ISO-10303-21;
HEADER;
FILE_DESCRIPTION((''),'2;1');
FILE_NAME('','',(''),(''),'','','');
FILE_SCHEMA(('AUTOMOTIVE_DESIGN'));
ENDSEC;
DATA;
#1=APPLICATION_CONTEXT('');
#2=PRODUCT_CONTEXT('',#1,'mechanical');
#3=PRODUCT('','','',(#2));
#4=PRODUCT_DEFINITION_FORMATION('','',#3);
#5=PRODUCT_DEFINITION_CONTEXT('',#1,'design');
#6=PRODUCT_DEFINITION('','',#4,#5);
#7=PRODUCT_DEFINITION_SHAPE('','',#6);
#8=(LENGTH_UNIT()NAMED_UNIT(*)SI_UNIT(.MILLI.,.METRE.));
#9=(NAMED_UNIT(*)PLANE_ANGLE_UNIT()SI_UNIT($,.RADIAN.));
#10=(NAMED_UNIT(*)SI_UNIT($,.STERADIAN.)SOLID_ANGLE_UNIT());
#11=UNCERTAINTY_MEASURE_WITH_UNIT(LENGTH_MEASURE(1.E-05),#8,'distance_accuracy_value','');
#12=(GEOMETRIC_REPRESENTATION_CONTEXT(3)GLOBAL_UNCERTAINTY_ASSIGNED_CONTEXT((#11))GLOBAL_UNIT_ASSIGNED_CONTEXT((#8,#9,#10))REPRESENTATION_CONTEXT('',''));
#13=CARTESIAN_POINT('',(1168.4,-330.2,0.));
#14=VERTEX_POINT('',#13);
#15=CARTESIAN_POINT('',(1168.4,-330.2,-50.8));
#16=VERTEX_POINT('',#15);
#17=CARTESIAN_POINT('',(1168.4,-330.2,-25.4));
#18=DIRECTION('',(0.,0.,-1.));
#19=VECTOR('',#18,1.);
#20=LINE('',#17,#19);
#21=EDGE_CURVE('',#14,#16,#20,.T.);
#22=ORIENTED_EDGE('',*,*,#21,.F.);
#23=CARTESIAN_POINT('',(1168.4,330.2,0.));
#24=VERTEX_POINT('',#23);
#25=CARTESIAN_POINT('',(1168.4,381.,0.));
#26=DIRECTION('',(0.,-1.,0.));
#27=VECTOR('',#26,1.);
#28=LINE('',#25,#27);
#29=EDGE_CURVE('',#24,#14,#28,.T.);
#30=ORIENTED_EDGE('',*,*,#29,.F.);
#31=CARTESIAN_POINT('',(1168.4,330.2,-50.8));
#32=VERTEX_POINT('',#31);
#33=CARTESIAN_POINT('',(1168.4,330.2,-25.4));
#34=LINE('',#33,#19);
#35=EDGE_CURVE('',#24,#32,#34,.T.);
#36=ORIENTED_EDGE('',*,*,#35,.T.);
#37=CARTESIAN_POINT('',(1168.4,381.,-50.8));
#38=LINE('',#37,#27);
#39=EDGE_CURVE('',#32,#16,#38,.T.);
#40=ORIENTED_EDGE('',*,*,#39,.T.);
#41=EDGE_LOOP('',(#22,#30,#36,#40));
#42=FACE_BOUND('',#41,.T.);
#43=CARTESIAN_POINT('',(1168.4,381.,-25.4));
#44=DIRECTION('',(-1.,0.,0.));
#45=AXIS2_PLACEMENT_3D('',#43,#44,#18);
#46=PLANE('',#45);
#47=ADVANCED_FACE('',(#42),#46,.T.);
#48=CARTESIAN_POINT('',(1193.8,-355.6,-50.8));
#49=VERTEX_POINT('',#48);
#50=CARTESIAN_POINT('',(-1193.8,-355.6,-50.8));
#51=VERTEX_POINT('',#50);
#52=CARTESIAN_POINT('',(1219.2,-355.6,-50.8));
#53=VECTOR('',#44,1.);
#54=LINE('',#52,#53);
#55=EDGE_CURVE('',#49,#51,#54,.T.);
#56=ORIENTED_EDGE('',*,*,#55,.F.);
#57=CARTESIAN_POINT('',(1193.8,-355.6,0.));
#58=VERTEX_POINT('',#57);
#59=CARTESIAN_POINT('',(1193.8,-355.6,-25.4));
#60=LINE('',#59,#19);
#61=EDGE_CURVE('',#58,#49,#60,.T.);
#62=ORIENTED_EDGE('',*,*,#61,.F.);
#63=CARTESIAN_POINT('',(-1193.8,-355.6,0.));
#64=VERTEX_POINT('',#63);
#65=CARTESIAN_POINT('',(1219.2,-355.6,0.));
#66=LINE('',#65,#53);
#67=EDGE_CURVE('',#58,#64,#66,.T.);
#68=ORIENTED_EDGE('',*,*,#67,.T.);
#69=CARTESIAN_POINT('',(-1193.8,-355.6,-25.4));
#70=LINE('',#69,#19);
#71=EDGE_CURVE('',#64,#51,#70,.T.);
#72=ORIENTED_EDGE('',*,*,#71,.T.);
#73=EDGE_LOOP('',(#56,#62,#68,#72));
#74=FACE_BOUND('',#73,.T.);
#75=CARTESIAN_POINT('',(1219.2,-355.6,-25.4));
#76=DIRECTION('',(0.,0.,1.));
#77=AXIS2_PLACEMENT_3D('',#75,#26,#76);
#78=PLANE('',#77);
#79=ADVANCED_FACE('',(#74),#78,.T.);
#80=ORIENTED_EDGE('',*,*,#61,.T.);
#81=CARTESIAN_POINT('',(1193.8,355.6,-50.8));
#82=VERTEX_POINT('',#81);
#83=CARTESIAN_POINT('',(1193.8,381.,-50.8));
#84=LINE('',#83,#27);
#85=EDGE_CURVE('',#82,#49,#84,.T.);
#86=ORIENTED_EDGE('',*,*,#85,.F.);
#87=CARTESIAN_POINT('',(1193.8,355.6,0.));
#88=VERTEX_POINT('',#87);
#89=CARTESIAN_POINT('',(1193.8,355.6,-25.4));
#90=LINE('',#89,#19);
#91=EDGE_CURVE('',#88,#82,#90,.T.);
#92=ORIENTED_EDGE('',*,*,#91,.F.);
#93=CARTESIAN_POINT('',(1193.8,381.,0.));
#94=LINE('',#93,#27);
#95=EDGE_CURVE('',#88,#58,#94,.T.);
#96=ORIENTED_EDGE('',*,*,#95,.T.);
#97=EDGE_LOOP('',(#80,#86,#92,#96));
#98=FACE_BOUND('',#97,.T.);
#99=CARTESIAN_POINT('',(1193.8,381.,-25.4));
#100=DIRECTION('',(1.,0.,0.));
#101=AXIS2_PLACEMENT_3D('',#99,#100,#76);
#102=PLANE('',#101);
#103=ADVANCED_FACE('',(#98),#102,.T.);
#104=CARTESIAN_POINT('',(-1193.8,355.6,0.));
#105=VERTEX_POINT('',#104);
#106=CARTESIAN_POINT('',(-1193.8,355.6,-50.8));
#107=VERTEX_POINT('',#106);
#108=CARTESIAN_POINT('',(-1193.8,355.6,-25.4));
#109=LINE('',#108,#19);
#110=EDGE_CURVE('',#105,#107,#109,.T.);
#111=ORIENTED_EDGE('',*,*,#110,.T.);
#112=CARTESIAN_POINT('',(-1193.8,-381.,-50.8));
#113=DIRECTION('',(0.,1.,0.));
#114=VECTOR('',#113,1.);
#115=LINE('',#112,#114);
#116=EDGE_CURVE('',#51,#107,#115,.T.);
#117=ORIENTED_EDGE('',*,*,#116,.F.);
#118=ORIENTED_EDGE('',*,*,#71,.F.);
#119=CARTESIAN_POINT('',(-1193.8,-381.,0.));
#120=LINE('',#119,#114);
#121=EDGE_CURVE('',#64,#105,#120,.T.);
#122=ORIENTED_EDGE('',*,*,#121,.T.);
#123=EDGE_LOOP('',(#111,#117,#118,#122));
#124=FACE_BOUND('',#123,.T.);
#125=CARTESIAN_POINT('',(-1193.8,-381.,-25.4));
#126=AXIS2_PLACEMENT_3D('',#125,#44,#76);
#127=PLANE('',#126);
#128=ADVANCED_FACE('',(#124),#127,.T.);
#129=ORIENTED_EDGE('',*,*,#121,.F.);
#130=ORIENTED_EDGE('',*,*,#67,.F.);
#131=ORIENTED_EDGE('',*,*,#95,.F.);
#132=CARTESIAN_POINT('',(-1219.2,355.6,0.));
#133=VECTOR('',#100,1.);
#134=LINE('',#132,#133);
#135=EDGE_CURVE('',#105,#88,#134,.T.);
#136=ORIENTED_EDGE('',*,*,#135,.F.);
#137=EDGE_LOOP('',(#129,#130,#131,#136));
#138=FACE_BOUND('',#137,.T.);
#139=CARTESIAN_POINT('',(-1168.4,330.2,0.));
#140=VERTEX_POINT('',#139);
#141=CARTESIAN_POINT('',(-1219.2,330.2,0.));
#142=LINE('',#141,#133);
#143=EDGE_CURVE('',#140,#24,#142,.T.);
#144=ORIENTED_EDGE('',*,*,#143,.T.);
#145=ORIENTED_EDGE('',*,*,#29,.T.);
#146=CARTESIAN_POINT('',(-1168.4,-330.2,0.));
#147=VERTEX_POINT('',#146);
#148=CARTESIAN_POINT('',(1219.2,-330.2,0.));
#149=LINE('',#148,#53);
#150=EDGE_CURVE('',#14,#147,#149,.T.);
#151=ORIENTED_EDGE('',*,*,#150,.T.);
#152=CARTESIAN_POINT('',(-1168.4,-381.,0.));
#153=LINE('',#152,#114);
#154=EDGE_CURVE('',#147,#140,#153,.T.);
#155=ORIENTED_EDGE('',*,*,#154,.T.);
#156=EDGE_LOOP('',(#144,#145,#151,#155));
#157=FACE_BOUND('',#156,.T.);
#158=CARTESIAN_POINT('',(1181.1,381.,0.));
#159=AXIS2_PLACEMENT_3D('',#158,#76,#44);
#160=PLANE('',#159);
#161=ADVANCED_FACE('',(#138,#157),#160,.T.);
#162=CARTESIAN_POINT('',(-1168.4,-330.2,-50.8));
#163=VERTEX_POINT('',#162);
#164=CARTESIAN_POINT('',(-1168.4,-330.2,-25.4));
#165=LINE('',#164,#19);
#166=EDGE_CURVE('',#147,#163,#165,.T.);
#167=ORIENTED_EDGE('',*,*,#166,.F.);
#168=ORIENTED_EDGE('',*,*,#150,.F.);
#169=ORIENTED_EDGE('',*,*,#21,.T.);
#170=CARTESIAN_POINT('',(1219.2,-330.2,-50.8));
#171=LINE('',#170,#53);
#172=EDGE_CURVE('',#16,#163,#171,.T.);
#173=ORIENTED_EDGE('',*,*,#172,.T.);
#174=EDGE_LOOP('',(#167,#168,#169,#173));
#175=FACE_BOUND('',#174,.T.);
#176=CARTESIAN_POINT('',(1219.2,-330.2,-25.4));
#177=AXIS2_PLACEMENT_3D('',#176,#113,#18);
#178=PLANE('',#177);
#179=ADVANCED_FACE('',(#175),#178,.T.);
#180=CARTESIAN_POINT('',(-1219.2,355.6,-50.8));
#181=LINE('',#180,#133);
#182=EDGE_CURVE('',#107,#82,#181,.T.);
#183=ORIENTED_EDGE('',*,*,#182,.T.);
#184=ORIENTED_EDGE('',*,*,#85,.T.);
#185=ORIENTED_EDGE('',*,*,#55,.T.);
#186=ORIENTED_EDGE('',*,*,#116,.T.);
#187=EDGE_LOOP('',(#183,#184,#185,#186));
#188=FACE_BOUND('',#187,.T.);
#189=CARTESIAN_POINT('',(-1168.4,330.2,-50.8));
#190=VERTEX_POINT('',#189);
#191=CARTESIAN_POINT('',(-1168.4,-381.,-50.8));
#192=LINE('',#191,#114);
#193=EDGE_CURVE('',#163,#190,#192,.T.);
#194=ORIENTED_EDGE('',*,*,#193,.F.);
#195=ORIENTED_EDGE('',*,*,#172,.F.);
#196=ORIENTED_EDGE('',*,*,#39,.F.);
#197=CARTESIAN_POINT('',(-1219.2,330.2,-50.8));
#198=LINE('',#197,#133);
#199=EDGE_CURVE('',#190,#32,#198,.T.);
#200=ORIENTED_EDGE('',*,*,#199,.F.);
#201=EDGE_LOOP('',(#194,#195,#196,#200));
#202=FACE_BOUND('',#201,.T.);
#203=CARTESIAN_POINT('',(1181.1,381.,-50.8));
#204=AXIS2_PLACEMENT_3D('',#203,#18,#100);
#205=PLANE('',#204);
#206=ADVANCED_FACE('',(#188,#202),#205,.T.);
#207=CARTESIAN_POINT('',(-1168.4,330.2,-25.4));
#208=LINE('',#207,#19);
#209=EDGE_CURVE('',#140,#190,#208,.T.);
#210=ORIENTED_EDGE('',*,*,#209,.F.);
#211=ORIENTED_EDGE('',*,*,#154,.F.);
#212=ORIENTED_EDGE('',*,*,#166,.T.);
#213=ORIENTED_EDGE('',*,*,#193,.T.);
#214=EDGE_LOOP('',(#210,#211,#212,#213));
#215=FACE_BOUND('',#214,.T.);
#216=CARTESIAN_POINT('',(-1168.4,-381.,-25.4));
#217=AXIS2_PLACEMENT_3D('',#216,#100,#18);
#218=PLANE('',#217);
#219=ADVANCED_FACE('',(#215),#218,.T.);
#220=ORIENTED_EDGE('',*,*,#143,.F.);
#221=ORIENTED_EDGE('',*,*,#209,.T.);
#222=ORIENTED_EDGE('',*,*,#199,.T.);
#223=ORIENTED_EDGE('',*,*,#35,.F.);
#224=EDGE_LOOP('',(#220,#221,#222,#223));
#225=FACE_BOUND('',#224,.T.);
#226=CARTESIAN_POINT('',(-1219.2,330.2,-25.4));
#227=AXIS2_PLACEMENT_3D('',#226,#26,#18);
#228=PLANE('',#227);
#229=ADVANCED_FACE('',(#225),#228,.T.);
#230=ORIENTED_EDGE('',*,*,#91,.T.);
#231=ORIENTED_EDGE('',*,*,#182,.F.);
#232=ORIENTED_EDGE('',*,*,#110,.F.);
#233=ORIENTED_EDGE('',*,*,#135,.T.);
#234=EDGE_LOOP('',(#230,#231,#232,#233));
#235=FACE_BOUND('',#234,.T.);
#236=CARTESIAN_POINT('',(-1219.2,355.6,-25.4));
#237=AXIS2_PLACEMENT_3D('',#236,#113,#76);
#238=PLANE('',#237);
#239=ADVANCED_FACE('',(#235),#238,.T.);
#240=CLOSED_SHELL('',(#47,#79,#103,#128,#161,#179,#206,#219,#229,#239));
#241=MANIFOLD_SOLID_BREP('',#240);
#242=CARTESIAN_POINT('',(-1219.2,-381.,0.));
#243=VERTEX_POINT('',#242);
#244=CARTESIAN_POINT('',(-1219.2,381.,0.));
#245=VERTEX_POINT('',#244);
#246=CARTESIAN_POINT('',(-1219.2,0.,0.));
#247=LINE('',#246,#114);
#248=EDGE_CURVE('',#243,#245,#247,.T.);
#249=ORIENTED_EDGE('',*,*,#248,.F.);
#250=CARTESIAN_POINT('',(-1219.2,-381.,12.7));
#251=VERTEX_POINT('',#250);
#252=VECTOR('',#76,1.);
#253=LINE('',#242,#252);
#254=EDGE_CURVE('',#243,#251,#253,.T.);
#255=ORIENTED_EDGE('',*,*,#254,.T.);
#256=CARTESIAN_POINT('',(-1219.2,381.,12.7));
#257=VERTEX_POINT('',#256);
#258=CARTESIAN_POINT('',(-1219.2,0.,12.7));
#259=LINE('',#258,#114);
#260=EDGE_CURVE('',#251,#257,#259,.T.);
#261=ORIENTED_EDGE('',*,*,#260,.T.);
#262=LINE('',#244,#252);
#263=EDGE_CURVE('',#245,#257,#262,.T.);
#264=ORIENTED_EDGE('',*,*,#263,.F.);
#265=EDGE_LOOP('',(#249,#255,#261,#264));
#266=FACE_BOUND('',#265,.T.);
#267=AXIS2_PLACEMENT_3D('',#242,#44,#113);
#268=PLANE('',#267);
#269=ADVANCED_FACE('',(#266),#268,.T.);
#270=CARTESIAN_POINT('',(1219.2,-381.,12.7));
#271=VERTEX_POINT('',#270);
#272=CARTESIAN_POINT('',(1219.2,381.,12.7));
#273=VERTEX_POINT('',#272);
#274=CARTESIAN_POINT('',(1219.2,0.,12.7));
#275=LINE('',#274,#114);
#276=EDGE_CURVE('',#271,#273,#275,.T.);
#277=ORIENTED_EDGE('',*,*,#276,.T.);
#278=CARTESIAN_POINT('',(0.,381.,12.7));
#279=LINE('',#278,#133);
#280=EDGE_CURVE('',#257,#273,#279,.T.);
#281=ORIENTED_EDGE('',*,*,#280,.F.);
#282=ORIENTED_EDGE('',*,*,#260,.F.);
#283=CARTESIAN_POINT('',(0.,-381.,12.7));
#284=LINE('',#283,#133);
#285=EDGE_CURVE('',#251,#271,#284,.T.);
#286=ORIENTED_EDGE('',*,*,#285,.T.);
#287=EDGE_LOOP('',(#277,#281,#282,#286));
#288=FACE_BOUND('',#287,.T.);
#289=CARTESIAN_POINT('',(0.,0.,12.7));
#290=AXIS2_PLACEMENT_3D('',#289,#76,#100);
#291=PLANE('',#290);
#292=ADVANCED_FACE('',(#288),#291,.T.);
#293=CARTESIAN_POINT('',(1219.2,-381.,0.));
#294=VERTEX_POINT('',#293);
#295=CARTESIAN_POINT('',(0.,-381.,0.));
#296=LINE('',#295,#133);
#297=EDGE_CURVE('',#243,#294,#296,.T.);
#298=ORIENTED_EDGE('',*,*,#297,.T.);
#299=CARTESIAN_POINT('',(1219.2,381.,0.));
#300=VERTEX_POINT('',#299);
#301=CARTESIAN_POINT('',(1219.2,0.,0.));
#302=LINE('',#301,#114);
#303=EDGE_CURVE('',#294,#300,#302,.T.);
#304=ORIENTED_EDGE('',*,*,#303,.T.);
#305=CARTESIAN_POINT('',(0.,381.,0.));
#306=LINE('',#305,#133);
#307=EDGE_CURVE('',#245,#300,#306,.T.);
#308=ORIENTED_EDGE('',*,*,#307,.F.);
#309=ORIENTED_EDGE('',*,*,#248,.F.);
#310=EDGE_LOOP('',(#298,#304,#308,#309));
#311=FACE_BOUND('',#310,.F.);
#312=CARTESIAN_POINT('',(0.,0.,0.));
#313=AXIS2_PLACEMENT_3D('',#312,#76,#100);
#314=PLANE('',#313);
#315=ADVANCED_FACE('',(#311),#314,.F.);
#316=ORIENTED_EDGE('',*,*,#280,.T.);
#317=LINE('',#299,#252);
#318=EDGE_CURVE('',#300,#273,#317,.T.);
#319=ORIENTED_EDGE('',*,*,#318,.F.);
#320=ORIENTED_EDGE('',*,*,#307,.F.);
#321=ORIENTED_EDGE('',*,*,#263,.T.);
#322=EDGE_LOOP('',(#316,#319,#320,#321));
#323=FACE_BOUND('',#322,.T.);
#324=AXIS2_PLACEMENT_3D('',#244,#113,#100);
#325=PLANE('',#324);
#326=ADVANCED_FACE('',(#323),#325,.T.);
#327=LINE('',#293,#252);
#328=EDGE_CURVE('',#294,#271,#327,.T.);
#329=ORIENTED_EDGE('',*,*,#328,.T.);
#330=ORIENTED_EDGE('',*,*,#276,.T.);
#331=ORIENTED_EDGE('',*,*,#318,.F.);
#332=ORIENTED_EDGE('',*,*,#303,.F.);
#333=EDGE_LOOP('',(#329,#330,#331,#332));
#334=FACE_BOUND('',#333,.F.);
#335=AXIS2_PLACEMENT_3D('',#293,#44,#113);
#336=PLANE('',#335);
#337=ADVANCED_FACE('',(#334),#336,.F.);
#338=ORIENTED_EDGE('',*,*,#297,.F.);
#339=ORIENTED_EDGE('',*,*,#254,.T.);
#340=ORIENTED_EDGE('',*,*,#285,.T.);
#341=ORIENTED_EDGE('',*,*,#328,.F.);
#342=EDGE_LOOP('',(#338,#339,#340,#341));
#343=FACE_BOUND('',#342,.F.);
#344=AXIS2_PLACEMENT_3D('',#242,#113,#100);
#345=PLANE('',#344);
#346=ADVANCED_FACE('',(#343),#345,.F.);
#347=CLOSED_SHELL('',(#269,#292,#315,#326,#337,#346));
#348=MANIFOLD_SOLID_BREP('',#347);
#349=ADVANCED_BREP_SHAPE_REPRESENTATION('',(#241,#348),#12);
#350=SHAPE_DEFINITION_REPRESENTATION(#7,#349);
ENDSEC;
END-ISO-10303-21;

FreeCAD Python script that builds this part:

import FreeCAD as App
import Part
import Sketcher
Q = App.Units.Quantity

doc = App.newDocument("Part")
body = doc.addObject("PartDesign::Body", "Body")

# Sketch on XZ plane
sketch1 = body.newObject("Sketcher::SketchObject", "Sketch")
sketch1.AttachmentSupport = (doc.getObject("XZ_Plane"), [""])
sketch1.MapMode = "FlatFace"
sketch1.addGeometry([
    Part.LineSegment(App.Vector(1168, 0, 0), App.Vector(1168, -51, 0)),
    Part.LineSegment(App.Vector(1168, -51, 0), App.Vector(1194, -51, 0)),
    Part.LineSegment(App.Vector(1194, -51, 0), App.Vector(1194, 0, 0)),
    Part.LineSegment(App.Vector(1194, 0, 0), App.Vector(1168, 0, 0)),
], False)
sketch1.addConstraint([
    Sketcher.Constraint("Coincident", 0, 2, 1, 1),
    Sketcher.Constraint("Coincident", 1, 2, 2, 1),
    Sketcher.Constraint("Coincident", 2, 2, 3, 1),
    Sketcher.Constraint("Coincident", 3, 2, 0, 1),
    Sketcher.Constraint("Vertical", 0),
    Sketcher.Constraint("Horizontal", 1),
    Sketcher.Constraint("Vertical", 2),
    Sketcher.Constraint("Horizontal", 3),
    Sketcher.Constraint("PointOnObject", 2, 2, -1),
    Sketcher.Constraint("DistanceX", 1, 1, 1, 2, Q("1 in")),
    Sketcher.Constraint("DistanceY", 0, 2, 0, 1, Q("2 in")),
    Sketcher.Constraint("DistanceX", -1, 1, 0, 2, Q("46 in")),
])

# Sketch on XY plane
sketch2 = body.newObject("Sketcher::SketchObject", "Sketch001")
sketch2.AttachmentSupport = (doc.getObject("XY_Plane"), [""])
sketch2.MapMode = "FlatFace"
sketch2.addGeometry([
    Part.LineSegment(App.Vector(1219, 381, 0), App.Vector(1219, -381, 0)),
    Part.LineSegment(App.Vector(1219, -381, 0), App.Vector(-1219, -381, 0)),
    Part.LineSegment(App.Vector(-1219, -381, 0), App.Vector(-1219, 381, 0)),
    Part.LineSegment(App.Vector(-1219, 381, 0), App.Vector(1219, 381, 0)),
], False)
sketch2.addConstraint([
    Sketcher.Constraint("Coincident", 0, 2, 1, 1),
    Sketcher.Constraint("Coincident", 1, 2, 2, 1),
    Sketcher.Constraint("Coincident", 2, 2, 3, 1),
    Sketcher.Constraint("Coincident", 3, 2, 0, 1),
    Sketcher.Constraint("Vertical", 0),
    Sketcher.Constraint("Horizontal", 1),
    Sketcher.Constraint("Vertical", 2),
    Sketcher.Constraint("Horizontal", 3),
    Sketcher.Constraint("Symmetric", 0, 2, 2, 2, -1, 1),
    Sketcher.Constraint("DistanceX", 1, 2, 1, 1, Q("96 in")),
    Sketcher.Constraint("DistanceY", 0, 2, 0, 1, Q("30 in")),
])
doc.recompute()

additivepipe = body.newObject("PartDesign::AdditivePipe", "AdditivePipe")
additivepipe.Profile = sketch1
additivepipe.Spine = (sketch2, ["Edge1", "Edge2", "Edge3", "Edge4"])
additivepipe.Transition = "Right corner"
body2 = doc.addObject("PartDesign::Body", "Body001")

# Sketch on XY plane
sketch3 = body2.newObject("Sketcher::SketchObject", "Sketch002")
sketch3.AttachmentSupport = (doc.getObject("XY_Plane001"), [""])
sketch3.MapMode = "FlatFace"
sketch3.addGeometry([
    Part.LineSegment(App.Vector(-1219, 381, 0), App.Vector(-1219, -381, 0)),
    Part.LineSegment(App.Vector(-1219, -381, 0), App.Vector(1219, -381, 0)),
    Part.LineSegment(App.Vector(1219, -381, 0), App.Vector(1219, 381, 0)),
    Part.LineSegment(App.Vector(1219, 381, 0), App.Vector(-1219, 381, 0)),
], False)
sketch3.addConstraint([
    Sketcher.Constraint("Coincident", 0, 2, 1, 1),
    Sketcher.Constraint("Coincident", 1, 2, 2, 1),
    Sketcher.Constraint("Coincident", 2, 2, 3, 1),
    Sketcher.Constraint("Coincident", 3, 2, 0, 1),
    Sketcher.Constraint("Vertical", 0),
    Sketcher.Constraint("Horizontal", 1),
    Sketcher.Constraint("Vertical", 2),
    Sketcher.Constraint("Horizontal", 3),
    Sketcher.Constraint("Symmetric", 0, 2, 2, 2, -1, 1),
    Sketcher.Constraint("DistanceX", 1, 1, 1, 2, Q("96 in")),
    Sketcher.Constraint("DistanceY", 0, 2, 0, 1, Q("30 in")),
])
pad1 = body2.newObject("PartDesign::Pad", "Pad")
pad1.Profile = sketch3
pad1.Length = Q("0.5 in")

doc.recompute()
